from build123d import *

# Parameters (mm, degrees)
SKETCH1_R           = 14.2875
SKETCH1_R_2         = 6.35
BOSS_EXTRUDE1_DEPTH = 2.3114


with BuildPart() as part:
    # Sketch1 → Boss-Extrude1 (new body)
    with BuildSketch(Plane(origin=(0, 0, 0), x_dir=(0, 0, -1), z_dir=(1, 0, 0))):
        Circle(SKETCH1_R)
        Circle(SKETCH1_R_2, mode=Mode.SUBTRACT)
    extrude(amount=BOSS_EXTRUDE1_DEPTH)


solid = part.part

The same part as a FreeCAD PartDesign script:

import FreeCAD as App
import Part
import Sketcher

V = App.Vector
Q = App.Units.Quantity

doc = App.newDocument("Part")
params = doc.addObject("Spreadsheet::Sheet", "Params")
for row, (alias, value) in enumerate([
    ("sketch1_diameter", "0.5 in"),
    ("sketch1_diameter2", "1.125 in"),
    ("pad1_length", "0.091 in"),
], start=1):
    params.set(f"A{row}", alias)
    params.set(f"B{row}", "=" + value)
    params.setAlias(f"B{row}", alias)

body = doc.addObject("PartDesign::Body", "Body")

# Sketch on YZ plane
sketch1 = body.newObject("Sketcher::SketchObject", "Sketch")
sketch1.AttachmentSupport = (doc.getObject("YZ_Plane"), [""])
sketch1.MapMode = "FlatFace"
sketch1.addGeometry([
    Part.Circle(V(0, 0, 0), V(0, 0, 1), 14),
    Part.Circle(V(0, 0, 0), V(0, 0, 1), 6),
], False)
sketch1.addConstraint([
    Sketcher.Constraint("Coincident", 0, 3, -1, 1),
    Sketcher.Constraint("Coincident", 1, 3, -1, 1),
    Sketcher.Constraint("Diameter", 1, Q("0.5 in")),
    Sketcher.Constraint("Diameter", 0, Q("1.125 in")),
])
sketch1.setExpression("Constraints[2]", "Params.sketch1_diameter")
sketch1.setExpression("Constraints[3]", "Params.sketch1_diameter2")
pad1 = body.newObject("PartDesign::Pad", "Pad")
pad1.Profile = sketch1
pad1.setExpression("Length", "Params.pad1_length")

doc.recompute()
